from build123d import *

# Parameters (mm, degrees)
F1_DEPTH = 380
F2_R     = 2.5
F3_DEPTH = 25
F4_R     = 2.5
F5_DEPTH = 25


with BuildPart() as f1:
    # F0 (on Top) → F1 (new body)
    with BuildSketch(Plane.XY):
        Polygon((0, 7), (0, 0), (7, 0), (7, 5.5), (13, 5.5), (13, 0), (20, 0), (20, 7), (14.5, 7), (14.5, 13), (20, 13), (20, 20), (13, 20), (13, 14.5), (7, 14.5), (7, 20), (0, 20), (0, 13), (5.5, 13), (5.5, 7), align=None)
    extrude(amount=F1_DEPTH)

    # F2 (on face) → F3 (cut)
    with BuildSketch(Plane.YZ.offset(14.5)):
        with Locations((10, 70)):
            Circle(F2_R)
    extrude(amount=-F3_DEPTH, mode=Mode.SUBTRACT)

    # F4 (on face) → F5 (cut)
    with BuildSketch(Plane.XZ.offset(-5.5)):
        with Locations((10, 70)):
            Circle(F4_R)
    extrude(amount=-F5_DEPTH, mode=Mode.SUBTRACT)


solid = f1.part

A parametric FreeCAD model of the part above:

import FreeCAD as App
import Part
import Sketcher
from FreeCAD import Vector


def add_polygon(sketch, points):
    """Adds a closed chain of lines whose ends are joined by coincident constraints."""
    first, n = sketch.GeometryCount, len(points)
    for a, b in zip(points, points[1:] + points[:1]):
        sketch.addGeometry(Part.LineSegment(App.Vector(*a, 0), App.Vector(*b, 0)), False)
    for i in range(n):
        sketch.addConstraint(Sketcher.Constraint("Coincident", first + i, 2, first + (i + 1) % n, 1))

doc = App.newDocument("Part")
body = doc.addObject("PartDesign::Body", "Body")

sketch1 = doc.addObject("Sketcher::SketchObject", "Sketch")
body.addObject(sketch1)
sketch1.AttachmentSupport = (doc.XY_Plane, [""])
sketch1.MapMode = "FlatFace"
add_polygon(sketch1, [(0, 7), (0, 0), (7, 0), (7, 6), (13, 6), (13, 0), (20, 0), (20, 7), (14, 7), (14, 13), (20, 13), (20, 20), (13, 20), (13, 14), (7, 14), (7, 20), (0, 20), (0, 13), (6, 13), (6, 7)])
sketch1.addConstraint(Sketcher.Constraint("Vertical", 0))
sketch1.addConstraint(Sketcher.Constraint("Horizontal", 1))
sketch1.addConstraint(Sketcher.Constraint("Vertical", 2))
sketch1.addConstraint(Sketcher.Constraint("Horizontal", 3))
sketch1.addConstraint(Sketcher.Constraint("Vertical", 4))
sketch1.addConstraint(Sketcher.Constraint("Horizontal", 5))
sketch1.addConstraint(Sketcher.Constraint("Vertical", 6))
sketch1.addConstraint(Sketcher.Constraint("Horizontal", 7))
sketch1.addConstraint(Sketcher.Constraint("Vertical", 8))
sketch1.addConstraint(Sketcher.Constraint("Horizontal", 9))
sketch1.addConstraint(Sketcher.Constraint("Vertical", 10))
sketch1.addConstraint(Sketcher.Constraint("Horizontal", 11))
sketch1.addConstraint(Sketcher.Constraint("Vertical", 12))
sketch1.addConstraint(Sketcher.Constraint("Horizontal", 13))
sketch1.addConstraint(Sketcher.Constraint("Vertical", 14))
sketch1.addConstraint(Sketcher.Constraint("Horizontal", 15))
sketch1.addConstraint(Sketcher.Constraint("Vertical", 16))
sketch1.addConstraint(Sketcher.Constraint("Horizontal", 17))
sketch1.addConstraint(Sketcher.Constraint("Vertical", 18))
sketch1.addConstraint(Sketcher.Constraint("Horizontal", 19))
sketch1.addConstraint(Sketcher.Constraint("Coincident", 0, 2, -1, 1))
sketch1.addConstraint(Sketcher.Constraint("PointOnObject", 4, 2, -1))
sketch1.addConstraint(Sketcher.Constraint("PointOnObject", 15, 2, -2))
sketch1.addConstraint(Sketcher.Constraint("Horizontal", 11, 2, 14, 2))
sketch1.addConstraint(Sketcher.Constraint("Horizontal", 9, 2, 16, 2))
sketch1.addConstraint(Sketcher.Constraint("Horizontal", 7, 2, 18, 2))
sketch1.addConstraint(Sketcher.Constraint("Vertical", 6, 2, 9, 2))
sketch1.addConstraint(Sketcher.Constraint("Vertical", 4, 2, 11, 2))
sketch1.addConstraint(Sketcher.Constraint("Vertical", 2, 2, 13, 2))
sketch1.addConstraint(Sketcher.Constraint("Equal", 1, 5))
sketch1.addConstraint(Sketcher.Constraint("Equal", 9, 17))
sketch1.addConstraint(Sketcher.Constraint("Equal", 15, 0))
sketch1.addConstraint(Sketcher.Constraint("Equal", 19, 2))
sketch1.addConstraint(Sketcher.Constraint("Equal", 13, 8))
sketch1.addConstraint(Sketcher.Constraint("Equal", 6, 10))
sketch1.addConstraint(Sketcher.Constraint("Equal", 4, 12))
sketch1.addConstraint(Sketcher.Constraint("DistanceX", 1, 1, 1, 2, 7.0))
sketch1.addConstraint(Sketcher.Constraint("DistanceX", 3, 1, 3, 2, 6.0))
sketch1.addConstraint(Sketcher.Constraint("DistanceX", 7, 2, 7, 1, 5.5))
pad1 = doc.addObject("PartDesign::Pad", "Pad")
body.addObject(pad1)
pad1.Profile = sketch1
pad1.Length = 380

sketch2 = doc.addObject("Sketcher::SketchObject", "Sketch001")
body.addObject(sketch2)
sketch2.AttachmentSupport = (doc.YZ_Plane, [""])
sketch2.MapMode = "FlatFace"
sketch2.AttachmentOffset = App.Placement(Vector(0, 0, 14.5), App.Rotation())
sketch2.addGeometry(Part.Circle(Vector(10, 70, 0), Vector(0, 0, 1), 2.5), False)
sketch2.addConstraint(Sketcher.Constraint("Diameter", 0, 5.0))
sketch2.addConstraint(Sketcher.Constraint("DistanceX", -1, 1, 0, 3, 10.0))
sketch2.addConstraint(Sketcher.Constraint("DistanceY", -1, 1, 0, 3, 70.0))
pocket1 = doc.addObject("PartDesign::Pocket", "Pocket")
body.addObject(pocket1)
pocket1.Profile = sketch2
pocket1.Length = 25

sketch3 = doc.addObject("Sketcher::SketchObject", "Sketch002")
body.addObject(sketch3)
sketch3.AttachmentSupport = (doc.XZ_Plane, [""])
sketch3.MapMode = "FlatFace"
sketch3.AttachmentOffset = App.Placement(Vector(0, 0, -5.5), App.Rotation())
sketch3.addGeometry(Part.Circle(Vector(10, 70, 0), Vector(0, 0, 1), 2.5), False)
sketch3.addConstraint(Sketcher.Constraint("Diameter", 0, 5.0))
sketch3.addConstraint(Sketcher.Constraint("DistanceX", -1, 1, 0, 3, 10.0))
sketch3.addConstraint(Sketcher.Constraint("DistanceY", -1, 1, 0, 3, 70.0))
pocket2 = doc.addObject("PartDesign::Pocket", "Pocket001")
body.addObject(pocket2)
pocket2.Profile = sketch3
pocket2.Length = 25

doc.recompute()
